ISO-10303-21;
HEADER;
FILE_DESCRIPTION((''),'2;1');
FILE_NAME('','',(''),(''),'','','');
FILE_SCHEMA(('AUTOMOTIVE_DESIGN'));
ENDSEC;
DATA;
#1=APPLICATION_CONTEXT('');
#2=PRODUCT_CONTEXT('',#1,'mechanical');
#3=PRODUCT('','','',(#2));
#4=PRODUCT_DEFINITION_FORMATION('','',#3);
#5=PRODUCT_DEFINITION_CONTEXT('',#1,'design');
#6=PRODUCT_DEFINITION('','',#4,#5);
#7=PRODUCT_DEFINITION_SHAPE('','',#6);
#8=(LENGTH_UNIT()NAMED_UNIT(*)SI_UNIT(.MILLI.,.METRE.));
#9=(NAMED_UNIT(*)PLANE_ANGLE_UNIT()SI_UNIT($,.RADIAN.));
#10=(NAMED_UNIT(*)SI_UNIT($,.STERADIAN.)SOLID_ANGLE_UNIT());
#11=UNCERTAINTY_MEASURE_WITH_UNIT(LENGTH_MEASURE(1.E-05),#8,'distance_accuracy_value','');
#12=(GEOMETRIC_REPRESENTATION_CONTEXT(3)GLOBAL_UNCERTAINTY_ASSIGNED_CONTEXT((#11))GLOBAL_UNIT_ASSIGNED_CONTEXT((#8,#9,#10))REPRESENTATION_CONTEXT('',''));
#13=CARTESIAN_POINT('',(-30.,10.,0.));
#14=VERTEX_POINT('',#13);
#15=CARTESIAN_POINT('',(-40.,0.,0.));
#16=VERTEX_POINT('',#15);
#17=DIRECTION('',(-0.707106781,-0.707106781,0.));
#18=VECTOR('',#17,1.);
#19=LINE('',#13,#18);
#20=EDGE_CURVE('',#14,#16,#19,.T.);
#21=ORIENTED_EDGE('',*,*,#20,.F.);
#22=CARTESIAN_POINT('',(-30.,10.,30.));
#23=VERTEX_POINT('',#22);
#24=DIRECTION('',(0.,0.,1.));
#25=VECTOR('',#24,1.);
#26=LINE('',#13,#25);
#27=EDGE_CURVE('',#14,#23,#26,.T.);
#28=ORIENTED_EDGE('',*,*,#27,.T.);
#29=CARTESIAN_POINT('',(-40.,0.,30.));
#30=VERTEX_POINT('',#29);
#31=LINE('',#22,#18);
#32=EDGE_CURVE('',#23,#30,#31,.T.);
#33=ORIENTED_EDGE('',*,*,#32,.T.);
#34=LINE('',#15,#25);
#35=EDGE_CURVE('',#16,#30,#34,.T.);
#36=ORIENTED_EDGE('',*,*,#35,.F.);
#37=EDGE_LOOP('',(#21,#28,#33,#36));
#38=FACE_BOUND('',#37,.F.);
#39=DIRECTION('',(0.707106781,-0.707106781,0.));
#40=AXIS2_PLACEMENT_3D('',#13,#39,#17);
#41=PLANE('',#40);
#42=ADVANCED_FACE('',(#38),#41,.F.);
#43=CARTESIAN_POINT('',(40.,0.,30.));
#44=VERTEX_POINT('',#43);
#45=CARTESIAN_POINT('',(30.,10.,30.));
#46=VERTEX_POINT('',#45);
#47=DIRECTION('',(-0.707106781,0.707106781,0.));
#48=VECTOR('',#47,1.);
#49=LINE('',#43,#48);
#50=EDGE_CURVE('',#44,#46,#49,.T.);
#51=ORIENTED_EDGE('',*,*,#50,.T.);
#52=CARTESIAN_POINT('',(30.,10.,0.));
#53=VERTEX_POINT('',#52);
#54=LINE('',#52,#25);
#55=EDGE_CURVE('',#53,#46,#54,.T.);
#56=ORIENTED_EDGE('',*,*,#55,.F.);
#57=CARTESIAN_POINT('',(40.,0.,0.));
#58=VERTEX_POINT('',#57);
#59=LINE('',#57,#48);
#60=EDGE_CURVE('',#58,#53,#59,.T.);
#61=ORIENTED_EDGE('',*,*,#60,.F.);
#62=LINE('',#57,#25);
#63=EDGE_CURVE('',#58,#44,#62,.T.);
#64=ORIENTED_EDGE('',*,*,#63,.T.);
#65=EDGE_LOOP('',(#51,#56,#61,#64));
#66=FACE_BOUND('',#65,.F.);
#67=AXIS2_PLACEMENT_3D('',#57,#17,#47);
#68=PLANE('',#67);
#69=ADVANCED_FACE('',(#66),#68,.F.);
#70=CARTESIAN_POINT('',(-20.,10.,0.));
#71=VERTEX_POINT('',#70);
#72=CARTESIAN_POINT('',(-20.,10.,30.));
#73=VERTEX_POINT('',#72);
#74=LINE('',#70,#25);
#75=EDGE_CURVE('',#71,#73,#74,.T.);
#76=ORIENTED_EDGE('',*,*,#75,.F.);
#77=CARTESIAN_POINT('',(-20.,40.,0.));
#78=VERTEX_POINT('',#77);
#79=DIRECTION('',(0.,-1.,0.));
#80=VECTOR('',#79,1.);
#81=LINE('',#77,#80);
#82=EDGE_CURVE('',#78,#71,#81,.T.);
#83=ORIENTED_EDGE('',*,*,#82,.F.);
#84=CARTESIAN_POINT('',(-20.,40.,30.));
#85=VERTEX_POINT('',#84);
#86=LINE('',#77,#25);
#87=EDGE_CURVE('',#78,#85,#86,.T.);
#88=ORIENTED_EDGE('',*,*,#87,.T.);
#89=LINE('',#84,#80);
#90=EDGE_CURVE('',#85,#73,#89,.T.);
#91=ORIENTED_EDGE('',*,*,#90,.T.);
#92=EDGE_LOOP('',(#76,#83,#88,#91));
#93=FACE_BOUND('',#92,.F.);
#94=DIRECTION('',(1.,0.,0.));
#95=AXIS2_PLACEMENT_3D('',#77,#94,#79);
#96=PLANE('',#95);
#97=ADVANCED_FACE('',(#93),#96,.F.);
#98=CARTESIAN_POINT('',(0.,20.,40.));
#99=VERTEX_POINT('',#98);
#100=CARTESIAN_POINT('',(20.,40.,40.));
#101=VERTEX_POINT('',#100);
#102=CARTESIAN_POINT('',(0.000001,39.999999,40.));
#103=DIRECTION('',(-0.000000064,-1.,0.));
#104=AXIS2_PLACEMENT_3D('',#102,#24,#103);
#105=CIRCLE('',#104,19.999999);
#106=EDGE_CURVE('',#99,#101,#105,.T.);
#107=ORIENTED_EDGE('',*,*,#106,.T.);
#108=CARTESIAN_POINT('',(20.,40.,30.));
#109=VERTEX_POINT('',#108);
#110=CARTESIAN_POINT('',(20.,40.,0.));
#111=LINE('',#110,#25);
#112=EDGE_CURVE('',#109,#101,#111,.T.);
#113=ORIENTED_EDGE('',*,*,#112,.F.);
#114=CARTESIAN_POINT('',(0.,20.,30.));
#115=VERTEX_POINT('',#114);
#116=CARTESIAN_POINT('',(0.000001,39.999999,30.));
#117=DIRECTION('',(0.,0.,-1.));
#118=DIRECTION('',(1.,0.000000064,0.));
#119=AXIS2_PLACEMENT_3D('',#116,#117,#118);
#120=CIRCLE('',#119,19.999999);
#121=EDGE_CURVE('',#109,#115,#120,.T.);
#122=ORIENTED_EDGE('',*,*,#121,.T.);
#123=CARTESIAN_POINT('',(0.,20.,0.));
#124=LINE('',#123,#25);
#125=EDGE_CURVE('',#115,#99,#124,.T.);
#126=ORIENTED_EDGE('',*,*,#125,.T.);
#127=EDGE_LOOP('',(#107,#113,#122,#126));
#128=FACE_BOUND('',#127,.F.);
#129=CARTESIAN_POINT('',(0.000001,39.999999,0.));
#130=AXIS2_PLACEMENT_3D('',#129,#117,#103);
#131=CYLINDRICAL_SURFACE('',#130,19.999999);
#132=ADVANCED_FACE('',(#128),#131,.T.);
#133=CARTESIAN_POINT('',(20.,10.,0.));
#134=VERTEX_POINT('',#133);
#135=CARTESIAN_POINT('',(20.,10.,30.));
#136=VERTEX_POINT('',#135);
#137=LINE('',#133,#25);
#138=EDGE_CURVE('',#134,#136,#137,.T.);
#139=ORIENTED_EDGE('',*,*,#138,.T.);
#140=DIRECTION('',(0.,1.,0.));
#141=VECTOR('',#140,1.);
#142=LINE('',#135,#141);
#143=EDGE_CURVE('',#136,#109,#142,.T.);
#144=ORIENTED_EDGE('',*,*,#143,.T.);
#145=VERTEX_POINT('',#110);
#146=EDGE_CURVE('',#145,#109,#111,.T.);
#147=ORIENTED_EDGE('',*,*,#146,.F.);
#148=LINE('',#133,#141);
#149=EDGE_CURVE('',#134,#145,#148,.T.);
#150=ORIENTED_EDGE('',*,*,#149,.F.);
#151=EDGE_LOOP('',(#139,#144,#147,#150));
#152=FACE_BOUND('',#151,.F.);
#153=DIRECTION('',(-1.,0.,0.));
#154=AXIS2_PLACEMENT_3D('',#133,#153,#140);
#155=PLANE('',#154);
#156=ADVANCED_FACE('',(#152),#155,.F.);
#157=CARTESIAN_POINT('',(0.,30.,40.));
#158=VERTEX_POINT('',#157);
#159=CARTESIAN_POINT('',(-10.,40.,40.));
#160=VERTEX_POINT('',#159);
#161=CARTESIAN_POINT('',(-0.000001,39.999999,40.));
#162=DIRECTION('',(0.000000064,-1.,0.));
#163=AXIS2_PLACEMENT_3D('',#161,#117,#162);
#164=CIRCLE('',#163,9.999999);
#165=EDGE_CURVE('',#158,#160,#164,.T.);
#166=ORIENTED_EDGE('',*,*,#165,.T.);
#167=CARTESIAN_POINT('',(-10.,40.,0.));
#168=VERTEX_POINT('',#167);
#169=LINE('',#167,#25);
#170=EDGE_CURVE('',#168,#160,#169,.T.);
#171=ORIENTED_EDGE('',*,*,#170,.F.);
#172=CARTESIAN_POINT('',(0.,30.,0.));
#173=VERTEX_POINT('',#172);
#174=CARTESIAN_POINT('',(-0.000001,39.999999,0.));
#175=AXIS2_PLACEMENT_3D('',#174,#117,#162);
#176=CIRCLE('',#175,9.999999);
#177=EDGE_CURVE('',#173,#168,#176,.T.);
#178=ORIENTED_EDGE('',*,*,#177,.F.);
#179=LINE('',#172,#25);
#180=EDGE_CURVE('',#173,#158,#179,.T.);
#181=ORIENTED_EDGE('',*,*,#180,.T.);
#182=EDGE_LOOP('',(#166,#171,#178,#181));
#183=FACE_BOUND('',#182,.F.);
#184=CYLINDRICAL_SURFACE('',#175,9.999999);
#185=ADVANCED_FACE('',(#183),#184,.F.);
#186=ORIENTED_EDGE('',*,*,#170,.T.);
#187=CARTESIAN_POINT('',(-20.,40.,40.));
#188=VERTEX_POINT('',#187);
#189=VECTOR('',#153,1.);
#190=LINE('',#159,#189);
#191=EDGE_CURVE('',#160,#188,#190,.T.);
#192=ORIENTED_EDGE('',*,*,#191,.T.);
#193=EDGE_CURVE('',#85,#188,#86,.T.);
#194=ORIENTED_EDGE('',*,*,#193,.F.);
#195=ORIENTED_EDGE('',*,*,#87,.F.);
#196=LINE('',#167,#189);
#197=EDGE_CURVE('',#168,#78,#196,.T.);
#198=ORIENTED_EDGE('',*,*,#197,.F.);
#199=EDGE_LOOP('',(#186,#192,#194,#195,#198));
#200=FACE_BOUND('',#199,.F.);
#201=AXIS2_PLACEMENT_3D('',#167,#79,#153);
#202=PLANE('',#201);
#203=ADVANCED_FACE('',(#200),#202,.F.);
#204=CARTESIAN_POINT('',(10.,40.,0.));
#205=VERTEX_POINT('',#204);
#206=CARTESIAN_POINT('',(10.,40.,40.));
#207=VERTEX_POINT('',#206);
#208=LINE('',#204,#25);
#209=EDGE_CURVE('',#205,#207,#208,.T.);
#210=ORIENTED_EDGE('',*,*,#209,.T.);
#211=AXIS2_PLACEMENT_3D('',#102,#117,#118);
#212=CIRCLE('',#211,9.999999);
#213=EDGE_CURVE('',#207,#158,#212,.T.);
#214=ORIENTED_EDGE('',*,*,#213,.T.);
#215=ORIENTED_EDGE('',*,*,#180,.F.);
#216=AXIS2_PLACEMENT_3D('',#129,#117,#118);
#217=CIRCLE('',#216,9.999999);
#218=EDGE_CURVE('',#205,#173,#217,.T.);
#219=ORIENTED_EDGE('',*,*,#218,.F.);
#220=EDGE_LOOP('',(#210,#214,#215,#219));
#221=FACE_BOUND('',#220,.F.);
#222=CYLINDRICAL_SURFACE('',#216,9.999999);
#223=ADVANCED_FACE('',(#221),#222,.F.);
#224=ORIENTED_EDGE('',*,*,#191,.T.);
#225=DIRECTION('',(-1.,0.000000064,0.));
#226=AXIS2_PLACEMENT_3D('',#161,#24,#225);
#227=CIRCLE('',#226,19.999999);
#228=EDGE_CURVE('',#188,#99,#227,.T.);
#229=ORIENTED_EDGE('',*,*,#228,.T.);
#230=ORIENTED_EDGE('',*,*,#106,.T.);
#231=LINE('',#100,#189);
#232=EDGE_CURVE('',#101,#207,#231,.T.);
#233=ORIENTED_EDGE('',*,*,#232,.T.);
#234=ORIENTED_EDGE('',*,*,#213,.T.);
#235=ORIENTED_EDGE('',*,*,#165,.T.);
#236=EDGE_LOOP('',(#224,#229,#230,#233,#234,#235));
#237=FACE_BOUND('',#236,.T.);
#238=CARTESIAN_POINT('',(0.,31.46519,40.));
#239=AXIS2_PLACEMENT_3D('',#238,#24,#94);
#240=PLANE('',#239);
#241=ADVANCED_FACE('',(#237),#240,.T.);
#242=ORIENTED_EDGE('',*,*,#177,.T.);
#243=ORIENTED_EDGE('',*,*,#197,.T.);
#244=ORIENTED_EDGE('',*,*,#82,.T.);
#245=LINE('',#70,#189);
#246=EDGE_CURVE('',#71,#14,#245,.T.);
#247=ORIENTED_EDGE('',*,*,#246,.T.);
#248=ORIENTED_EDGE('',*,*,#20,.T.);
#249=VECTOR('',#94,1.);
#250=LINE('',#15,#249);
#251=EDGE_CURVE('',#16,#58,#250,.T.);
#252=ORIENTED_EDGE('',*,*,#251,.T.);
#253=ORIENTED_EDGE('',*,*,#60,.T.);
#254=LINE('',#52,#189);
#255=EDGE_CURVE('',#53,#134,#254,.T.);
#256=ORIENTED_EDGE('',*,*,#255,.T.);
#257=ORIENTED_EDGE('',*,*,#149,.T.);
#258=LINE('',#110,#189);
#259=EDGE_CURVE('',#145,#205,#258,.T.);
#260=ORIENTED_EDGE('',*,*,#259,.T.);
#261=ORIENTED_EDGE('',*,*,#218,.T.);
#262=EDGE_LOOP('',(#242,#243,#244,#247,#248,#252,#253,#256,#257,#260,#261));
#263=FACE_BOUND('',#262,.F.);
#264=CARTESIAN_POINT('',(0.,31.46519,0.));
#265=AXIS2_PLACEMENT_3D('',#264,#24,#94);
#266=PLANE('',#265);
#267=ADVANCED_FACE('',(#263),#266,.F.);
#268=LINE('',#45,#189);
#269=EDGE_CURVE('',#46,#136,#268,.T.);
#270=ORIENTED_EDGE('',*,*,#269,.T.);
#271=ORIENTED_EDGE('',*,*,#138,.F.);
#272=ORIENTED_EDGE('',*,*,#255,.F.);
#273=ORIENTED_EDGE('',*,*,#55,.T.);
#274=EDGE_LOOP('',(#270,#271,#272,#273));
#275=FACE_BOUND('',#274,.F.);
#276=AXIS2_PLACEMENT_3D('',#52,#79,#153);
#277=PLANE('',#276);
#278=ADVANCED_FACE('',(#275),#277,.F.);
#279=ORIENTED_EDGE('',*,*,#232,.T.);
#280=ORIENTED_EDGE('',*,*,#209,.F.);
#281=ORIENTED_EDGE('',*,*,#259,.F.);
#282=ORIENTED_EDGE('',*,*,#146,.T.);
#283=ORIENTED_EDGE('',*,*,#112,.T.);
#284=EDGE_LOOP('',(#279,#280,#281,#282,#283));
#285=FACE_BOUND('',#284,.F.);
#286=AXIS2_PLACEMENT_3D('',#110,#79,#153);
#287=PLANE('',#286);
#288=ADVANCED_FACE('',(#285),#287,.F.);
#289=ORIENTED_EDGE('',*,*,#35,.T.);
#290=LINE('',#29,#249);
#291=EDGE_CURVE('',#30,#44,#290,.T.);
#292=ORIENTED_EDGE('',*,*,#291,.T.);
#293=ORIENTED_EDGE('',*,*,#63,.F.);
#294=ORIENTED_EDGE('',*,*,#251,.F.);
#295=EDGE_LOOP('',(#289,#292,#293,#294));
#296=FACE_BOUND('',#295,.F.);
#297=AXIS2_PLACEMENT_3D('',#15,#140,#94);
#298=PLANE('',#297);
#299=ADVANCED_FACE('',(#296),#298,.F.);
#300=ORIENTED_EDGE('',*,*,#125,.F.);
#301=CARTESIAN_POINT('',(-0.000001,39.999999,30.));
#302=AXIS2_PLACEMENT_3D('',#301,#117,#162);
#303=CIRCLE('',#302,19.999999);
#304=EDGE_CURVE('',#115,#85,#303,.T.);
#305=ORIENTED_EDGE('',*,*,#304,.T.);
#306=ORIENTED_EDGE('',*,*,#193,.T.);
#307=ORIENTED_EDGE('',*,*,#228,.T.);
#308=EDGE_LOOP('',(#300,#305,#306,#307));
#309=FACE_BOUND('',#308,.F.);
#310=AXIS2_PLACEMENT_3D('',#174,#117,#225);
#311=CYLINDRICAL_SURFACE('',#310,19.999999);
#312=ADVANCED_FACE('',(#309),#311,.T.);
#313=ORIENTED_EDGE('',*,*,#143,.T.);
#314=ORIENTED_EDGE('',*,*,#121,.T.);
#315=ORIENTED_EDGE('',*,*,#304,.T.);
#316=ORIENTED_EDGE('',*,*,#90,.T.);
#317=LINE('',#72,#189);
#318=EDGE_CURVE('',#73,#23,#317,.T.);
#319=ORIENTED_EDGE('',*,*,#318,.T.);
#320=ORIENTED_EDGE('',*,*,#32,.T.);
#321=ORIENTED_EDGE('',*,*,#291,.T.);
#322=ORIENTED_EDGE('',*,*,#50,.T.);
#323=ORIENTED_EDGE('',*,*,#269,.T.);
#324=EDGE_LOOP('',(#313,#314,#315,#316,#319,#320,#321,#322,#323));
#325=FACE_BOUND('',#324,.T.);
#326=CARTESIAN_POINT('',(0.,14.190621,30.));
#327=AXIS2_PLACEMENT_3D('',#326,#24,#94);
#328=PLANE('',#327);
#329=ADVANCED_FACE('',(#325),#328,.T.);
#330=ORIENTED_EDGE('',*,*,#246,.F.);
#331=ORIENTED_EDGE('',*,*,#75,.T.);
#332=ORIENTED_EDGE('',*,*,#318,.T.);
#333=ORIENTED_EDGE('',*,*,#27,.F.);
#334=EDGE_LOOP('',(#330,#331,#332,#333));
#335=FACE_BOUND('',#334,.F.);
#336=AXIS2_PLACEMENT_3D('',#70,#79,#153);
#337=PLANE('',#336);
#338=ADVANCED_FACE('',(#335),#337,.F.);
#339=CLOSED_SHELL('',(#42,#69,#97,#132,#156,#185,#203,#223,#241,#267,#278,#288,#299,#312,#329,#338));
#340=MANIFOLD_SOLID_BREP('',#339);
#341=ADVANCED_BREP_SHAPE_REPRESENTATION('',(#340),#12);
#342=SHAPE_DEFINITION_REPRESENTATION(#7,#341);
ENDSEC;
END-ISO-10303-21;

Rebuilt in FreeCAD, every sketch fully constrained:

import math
import FreeCAD as App
import Part
import Sketcher
from FreeCAD import Vector

doc = App.newDocument("Part")
params = doc.addObject("Spreadsheet::Sheet", "Params")
for row, (alias, value) in enumerate([
    ("sketch1_radius", "19.999999 mm"),
    ("sketch1_width", "80 mm"),
    ("sketch1_width2", "10 mm"),
    ("sketch1_height", "30 mm"),
    ("pad1_length", "30 mm"),
    ("sketch2_radius", "19.999999 mm"),
    ("sketch2_radius2", "9.999999 mm"),
    ("pad2_length", "40 mm"),
], start=1):
    params.set(f"A{row}", alias)
    params.set(f"B{row}", "=" + value)
    params.setAlias(f"B{row}", alias)

body = doc.addObject("PartDesign::Body", "Body")

sketch1 = body.newObject("Sketcher::SketchObject", "Sketch")
sketch1.AttachmentSupport = (doc.getObject("XY_Plane"), [""])
sketch1.MapMode = "FlatFace"
sketch1.addGeometry(Part.LineSegment(Vector(-40, 0, 0), Vector(40, 0, 0)), False)
sketch1.addGeometry(Part.LineSegment(Vector(40, 0, 0), Vector(30, 10, 0)), False)
sketch1.addGeometry(Part.LineSegment(Vector(30, 10, 0), Vector(20, 10, 0)), False)
sketch1.addGeometry(Part.LineSegment(Vector(20, 10, 0), Vector(20, 40, 0)), False)
sketch1.addGeometry(Part.ArcOfCircle(Part.Circle(Vector(0.000001, 39.999999, 0), Vector(0, 0, 1), 19.999999), math.radians(-90.000004), math.radians(0.000004)), False)
sketch1.addGeometry(Part.ArcOfCircle(Part.Circle(Vector(-0.000001, 39.999999, 0), Vector(0, 0, 1), 19.999999), math.radians(179.999996), math.radians(270.000004)), False)
sketch1.addGeometry(Part.LineSegment(Vector(-20, 40, 0), Vector(-20, 10, 0)), False)
sketch1.addGeometry(Part.LineSegment(Vector(-20, 10, 0), Vector(-30, 10, 0)), False)
sketch1.addGeometry(Part.LineSegment(Vector(-30, 10, 0), Vector(-40, 0, 0)), False)
sketch1.addConstraint(Sketcher.Constraint("Coincident", 0, 2, 1, 1))
sketch1.addConstraint(Sketcher.Constraint("Coincident", 1, 2, 2, 1))
sketch1.addConstraint(Sketcher.Constraint("Coincident", 2, 2, 3, 1))
sketch1.addConstraint(Sketcher.Constraint("Tangent", 3, 2, 4, 2))
sketch1.addConstraint(Sketcher.Constraint("Tangent", 4, 1, 5, 2))
sketch1.addConstraint(Sketcher.Constraint("Tangent", 5, 1, 6, 1))
sketch1.addConstraint(Sketcher.Constraint("Coincident", 6, 2, 7, 1))
sketch1.addConstraint(Sketcher.Constraint("Coincident", 7, 2, 8, 1))
sketch1.addConstraint(Sketcher.Constraint("Coincident", 8, 2, 0, 1))
sketch1.addConstraint(Sketcher.Constraint("Horizontal", 0))
sketch1.addConstraint(Sketcher.Constraint("Horizontal", 2))
sketch1.addConstraint(Sketcher.Constraint("Vertical", 3))
sketch1.addConstraint(Sketcher.Constraint("Vertical", 6))
sketch1.addConstraint(Sketcher.Constraint("Horizontal", 7))
sketch1.addConstraint(Sketcher.Constraint("Equal", 4, 5))
sketch1.addConstraint(Sketcher.Constraint("Symmetric", 0, 2, 8, 2, -1, 1))
sketch1.addConstraint(Sketcher.Constraint("Symmetric", 2, 2, 6, 2, -2))
sketch1.addConstraint(Sketcher.Constraint("PointOnObject", 4, 1, -2))
sketch1.addConstraint(Sketcher.Constraint("Perpendicular", 1, 8))
sketch1.addConstraint(Sketcher.Constraint("Equal", 2, 7))
sketch1.addConstraint(Sketcher.Constraint("Radius", 4, 19.999999))
sketch1.addConstraint(Sketcher.Constraint("DistanceX", 0, 1, 0, 2, 80.0))
sketch1.addConstraint(Sketcher.Constraint("DistanceX", 2, 2, 2, 1, 10.0))
sketch1.addConstraint(Sketcher.Constraint("DistanceY", 3, 1, 3, 2, 30.0))
sketch1.setExpression("Constraints[20]", "Params.sketch1_radius")
sketch1.setExpression("Constraints[21]", "Params.sketch1_width")
sketch1.setExpression("Constraints[22]", "Params.sketch1_width2")
sketch1.setExpression("Constraints[23]", "Params.sketch1_height")
pad1 = body.newObject("PartDesign::Pad", "Pad")
pad1.Profile = sketch1
pad1.setExpression("Length", "Params.pad1_length")

sketch2 = body.newObject("Sketcher::SketchObject", "Sketch001")
sketch2.AttachmentSupport = (doc.getObject("XY_Plane"), [""])
sketch2.MapMode = "FlatFace"
sketch2.addGeometry(Part.LineSegment(Vector(-10, 40, 0), Vector(-20, 40, 0)), False)
sketch2.addGeometry(Part.ArcOfCircle(Part.Circle(Vector(-0.000001, 39.999999, 0), Vector(0, 0, 1), 19.999999), math.radians(179.999996), math.radians(270.000004)), False)
sketch2.addGeometry(Part.ArcOfCircle(Part.Circle(Vector(0.000001, 39.999999, 0), Vector(0, 0, 1), 19.999999), math.radians(-90.000004), math.radians(0.000004)), False)
sketch2.addGeometry(Part.LineSegment(Vector(20, 40, 0), Vector(10, 40, 0)), False)
sketch2.addGeometry(Part.ArcOfCircle(Part.Circle(Vector(0.000001, 39.999999, 0), Vector(0, 0, 1), 9.999999), math.radians(-90.000004), math.radians(0.000004)), False)
sketch2.addGeometry(Part.ArcOfCircle(Part.Circle(Vector(-0.000001, 39.999999, 0), Vector(0, 0, 1), 9.999999), math.radians(179.999996), math.radians(270.000004)), False)
sketch2.addConstraint(Sketcher.Constraint("Coincident", 0, 2, 1, 1))
sketch2.addConstraint(Sketcher.Constraint("Tangent", 1, 2, 2, 1))
sketch2.addConstraint(Sketcher.Constraint("Coincident", 2, 2, 3, 1))
sketch2.addConstraint(Sketcher.Constraint("Coincident", 3, 2, 4, 2))
sketch2.addConstraint(Sketcher.Constraint("Tangent", 4, 1, 5, 2))
sketch2.addConstraint(Sketcher.Constraint("Coincident", 5, 1, 0, 1))
sketch2.addConstraint(Sketcher.Constraint("Horizontal", 0))
sketch2.addConstraint(Sketcher.Constraint("Horizontal", 3))
sketch2.addConstraint(Sketcher.Constraint("Coincident", 4, 3, 1, 3))
sketch2.addConstraint(Sketcher.Constraint("Equal", 1, 2))
sketch2.addConstraint(Sketcher.Constraint("Equal", 4, 5))
sketch2.addConstraint(Sketcher.Constraint("Symmetric", 0, 2, 2, 2, -2))
sketch2.addConstraint(Sketcher.Constraint("PointOnObject", 1, 2, -2))
sketch2.addConstraint(Sketcher.Constraint("PointOnObject", 4, 1, -2))
sketch2.addConstraint(Sketcher.Constraint("Horizontal", 5, 3, 0, 2))
sketch2.addConstraint(Sketcher.Constraint("Radius", 1, 19.999999))
sketch2.addConstraint(Sketcher.Constraint("Radius", 4, 9.999999))
sketch2.addConstraint(Sketcher.Constraint("DistanceY", -1, 1, 1, 3, 39.999999))
sketch2.setExpression("Constraints[15]", "Params.sketch2_radius")
sketch2.setExpression("Constraints[16]", "Params.sketch2_radius2")
pad2 = body.newObject("PartDesign::Pad", "Pad001")
pad2.Profile = sketch2
pad2.setExpression("Length", "Params.pad2_length")

doc.recompute()
